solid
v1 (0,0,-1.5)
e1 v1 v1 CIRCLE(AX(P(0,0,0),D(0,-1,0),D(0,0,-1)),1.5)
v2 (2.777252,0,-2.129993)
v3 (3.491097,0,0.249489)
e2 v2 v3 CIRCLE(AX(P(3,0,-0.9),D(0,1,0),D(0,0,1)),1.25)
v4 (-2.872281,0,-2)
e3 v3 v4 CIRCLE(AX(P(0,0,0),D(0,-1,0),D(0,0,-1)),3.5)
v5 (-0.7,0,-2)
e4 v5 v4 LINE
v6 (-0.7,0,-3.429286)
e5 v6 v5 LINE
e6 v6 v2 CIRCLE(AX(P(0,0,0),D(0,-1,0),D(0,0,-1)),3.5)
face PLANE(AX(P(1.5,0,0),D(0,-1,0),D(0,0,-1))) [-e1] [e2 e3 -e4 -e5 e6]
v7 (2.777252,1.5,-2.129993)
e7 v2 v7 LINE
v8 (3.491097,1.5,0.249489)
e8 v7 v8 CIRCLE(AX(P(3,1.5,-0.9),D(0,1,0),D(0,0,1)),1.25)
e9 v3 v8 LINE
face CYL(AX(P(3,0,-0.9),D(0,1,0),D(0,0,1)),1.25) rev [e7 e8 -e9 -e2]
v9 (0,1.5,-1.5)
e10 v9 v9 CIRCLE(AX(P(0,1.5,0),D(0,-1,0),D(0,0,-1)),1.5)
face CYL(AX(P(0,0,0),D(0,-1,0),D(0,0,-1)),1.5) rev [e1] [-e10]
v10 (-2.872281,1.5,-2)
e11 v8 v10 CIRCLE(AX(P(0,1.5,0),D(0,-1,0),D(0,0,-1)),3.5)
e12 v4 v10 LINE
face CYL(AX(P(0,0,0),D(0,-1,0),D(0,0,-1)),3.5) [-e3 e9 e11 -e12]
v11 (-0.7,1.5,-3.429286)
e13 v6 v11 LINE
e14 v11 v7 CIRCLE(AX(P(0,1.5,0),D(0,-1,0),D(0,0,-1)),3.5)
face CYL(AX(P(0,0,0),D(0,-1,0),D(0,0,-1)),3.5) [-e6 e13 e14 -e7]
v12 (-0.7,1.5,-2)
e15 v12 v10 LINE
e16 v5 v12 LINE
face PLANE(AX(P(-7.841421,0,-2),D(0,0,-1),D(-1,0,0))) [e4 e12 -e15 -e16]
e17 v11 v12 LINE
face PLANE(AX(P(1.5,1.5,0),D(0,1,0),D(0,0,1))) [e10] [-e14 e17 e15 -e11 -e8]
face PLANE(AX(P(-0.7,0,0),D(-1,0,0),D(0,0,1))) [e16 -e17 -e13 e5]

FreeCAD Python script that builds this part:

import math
import FreeCAD as App
import Part
import Sketcher
from FreeCAD import Vector

doc = App.newDocument("Part")
params = doc.addObject("Spreadsheet::Sheet", "Params")
for row, (alias, value) in enumerate([
    ("sketch1_width", "2 mm"),
    ("sketch1_height", "1.5 mm"),
    ("revolution_angle", "360 deg"),
    ("sketch2_radius", "3.5 mm"),
    ("sketch2_radius2", "1.25 mm"),
], start=1):
    params.set(f"A{row}", alias)
    params.set(f"B{row}", "=" + value)
    params.setAlias(f"B{row}", alias)

body = doc.addObject("PartDesign::Body", "Body")

# Sketch on XY plane
sketch1 = doc.addObject("Sketcher::SketchObject", "Sketch")
body.addObject(sketch1)
sketch1.AttachmentSupport = (doc.XY_Plane, [""])
sketch1.MapMode = "FlatFace"
sketch1.addGeometry(Part.LineSegment(Vector(1.5, 1.5, 0), Vector(1.5, 0, 0)), False)
sketch1.addGeometry(Part.LineSegment(Vector(1.5, 0, 0), Vector(3.5, 0, 0)), False)
sketch1.addGeometry(Part.LineSegment(Vector(3.5, 0, 0), Vector(3.5, 1.5, 0)), False)
sketch1.addGeometry(Part.LineSegment(Vector(3.5, 1.5, 0), Vector(1.5, 1.5, 0)), False)
sketch1.addConstraint(Sketcher.Constraint("Coincident", 0, 2, 1, 1))
sketch1.addConstraint(Sketcher.Constraint("Coincident", 1, 2, 2, 1))
sketch1.addConstraint(Sketcher.Constraint("Coincident", 2, 2, 3, 1))
sketch1.addConstraint(Sketcher.Constraint("Coincident", 3, 2, 0, 1))
sketch1.addConstraint(Sketcher.Constraint("Vertical", 0))
sketch1.addConstraint(Sketcher.Constraint("Horizontal", 1))
sketch1.addConstraint(Sketcher.Constraint("Vertical", 2))
sketch1.addConstraint(Sketcher.Constraint("Horizontal", 3))
sketch1.addConstraint(Sketcher.Constraint("PointOnObject", 0, 2, -1))
sketch1.addConstraint(Sketcher.Constraint("DistanceX", 1, 1, 1, 2, 2.0))
sketch1.addConstraint(Sketcher.Constraint("DistanceY", 0, 2, 0, 1, 1.5))
sketch1.addConstraint(Sketcher.Constraint("DistanceX", -1, 1, 0, 2, 1.5))
sketch1.setExpression("Constraints[9]", "Params.sketch1_width")
sketch1.setExpression("Constraints[10]", "Params.sketch1_height")
revolution = doc.addObject("PartDesign::Revolution", "Revolution")
body.addObject(revolution)
revolution.Profile = sketch1
revolution.ReferenceAxis = (sketch1, ["V_Axis"])
revolution.setExpression("Angle", "Params.revolution_angle")

# Sketch on XZ plane
sketch2 = doc.addObject("Sketcher::SketchObject", "Sketch001")
body.addObject(sketch2)
sketch2.AttachmentSupport = (doc.XZ_Plane, [""])
sketch2.MapMode = "FlatFace"
sketch2.AttachmentOffset = App.Placement(Vector(0, 0, -1.5), App.Rotation())
sketch2.addGeometry(Part.LineSegment(Vector(-0.7, -2, 0), Vector(-0.7, -3.429286, 0)), False)
sketch2.addGeometry(Part.ArcOfCircle(Part.Circle(Vector(0, 0, 0), Vector(0, 0, 1), 3.5), math.radians(-145.150095), math.radians(-101.536959)), False)
sketch2.addGeometry(Part.LineSegment(Vector(-2.872281, -2, 0), Vector(-0.7, -2, 0)), False)
sketch2.addGeometry(Part.ArcOfCircle(Part.Circle(Vector(0, 0, 0), Vector(0, 0, 1), 3.5), math.radians(-37.48614), math.radians(4.087651)), False)
sketch2.addGeometry(Part.ArcOfCircle(Part.Circle(Vector(3, -0.9, 0), Vector(0, 0, 1), 1.25), math.radians(66.866349), math.radians(259.735162)), False)
sketch2.addConstraint(Sketcher.Constraint("Coincident", 0, 2, 1, 2))
sketch2.addConstraint(Sketcher.Constraint("Coincident", 1, 1, 2, 1))
sketch2.addConstraint(Sketcher.Constraint("Coincident", 2, 2, 0, 1))
sketch2.addConstraint(Sketcher.Constraint("Coincident", 3, 1, 4, 2))
sketch2.addConstraint(Sketcher.Constraint("Coincident", 4, 1, 3, 2))
sketch2.addConstraint(Sketcher.Constraint("Vertical", 0))
sketch2.addConstraint(Sketcher.Constraint("Horizontal", 2))
sketch2.addConstraint(Sketcher.Constraint("Coincident", 1, 3, -1, 1))
sketch2.addConstraint(Sketcher.Constraint("Coincident", 3, 3, -1, 1))
sketch2.addConstraint(Sketcher.Constraint("Equal", 1, 3))
sketch2.addConstraint(Sketcher.Constraint("Radius", 1, 3.5))
sketch2.addConstraint(Sketcher.Constraint("Radius", 4, 1.25))
sketch2.addConstraint(Sketcher.Constraint("DistanceX", -1, 1, 4, 3, 3.0))
sketch2.addConstraint(Sketcher.Constraint("DistanceY", 1, 1, -1, 1, 2.0))
sketch2.addConstraint(Sketcher.Constraint("DistanceY", 4, 3, -1, 1, 0.9))
sketch2.addConstraint(Sketcher.Constraint("DistanceX", 0, 2, -1, 1, 0.7))
sketch2.setExpression("Constraints[10]", "Params.sketch2_radius")
sketch2.setExpression("Constraints[11]", "Params.sketch2_radius2")
pocket1 = doc.addObject("PartDesign::Pocket", "Pocket")
body.addObject(pocket1)
pocket1.Profile = sketch2
pocket1.Type = "ThroughAll"
pocket1.Reversed = True

doc.recompute()
